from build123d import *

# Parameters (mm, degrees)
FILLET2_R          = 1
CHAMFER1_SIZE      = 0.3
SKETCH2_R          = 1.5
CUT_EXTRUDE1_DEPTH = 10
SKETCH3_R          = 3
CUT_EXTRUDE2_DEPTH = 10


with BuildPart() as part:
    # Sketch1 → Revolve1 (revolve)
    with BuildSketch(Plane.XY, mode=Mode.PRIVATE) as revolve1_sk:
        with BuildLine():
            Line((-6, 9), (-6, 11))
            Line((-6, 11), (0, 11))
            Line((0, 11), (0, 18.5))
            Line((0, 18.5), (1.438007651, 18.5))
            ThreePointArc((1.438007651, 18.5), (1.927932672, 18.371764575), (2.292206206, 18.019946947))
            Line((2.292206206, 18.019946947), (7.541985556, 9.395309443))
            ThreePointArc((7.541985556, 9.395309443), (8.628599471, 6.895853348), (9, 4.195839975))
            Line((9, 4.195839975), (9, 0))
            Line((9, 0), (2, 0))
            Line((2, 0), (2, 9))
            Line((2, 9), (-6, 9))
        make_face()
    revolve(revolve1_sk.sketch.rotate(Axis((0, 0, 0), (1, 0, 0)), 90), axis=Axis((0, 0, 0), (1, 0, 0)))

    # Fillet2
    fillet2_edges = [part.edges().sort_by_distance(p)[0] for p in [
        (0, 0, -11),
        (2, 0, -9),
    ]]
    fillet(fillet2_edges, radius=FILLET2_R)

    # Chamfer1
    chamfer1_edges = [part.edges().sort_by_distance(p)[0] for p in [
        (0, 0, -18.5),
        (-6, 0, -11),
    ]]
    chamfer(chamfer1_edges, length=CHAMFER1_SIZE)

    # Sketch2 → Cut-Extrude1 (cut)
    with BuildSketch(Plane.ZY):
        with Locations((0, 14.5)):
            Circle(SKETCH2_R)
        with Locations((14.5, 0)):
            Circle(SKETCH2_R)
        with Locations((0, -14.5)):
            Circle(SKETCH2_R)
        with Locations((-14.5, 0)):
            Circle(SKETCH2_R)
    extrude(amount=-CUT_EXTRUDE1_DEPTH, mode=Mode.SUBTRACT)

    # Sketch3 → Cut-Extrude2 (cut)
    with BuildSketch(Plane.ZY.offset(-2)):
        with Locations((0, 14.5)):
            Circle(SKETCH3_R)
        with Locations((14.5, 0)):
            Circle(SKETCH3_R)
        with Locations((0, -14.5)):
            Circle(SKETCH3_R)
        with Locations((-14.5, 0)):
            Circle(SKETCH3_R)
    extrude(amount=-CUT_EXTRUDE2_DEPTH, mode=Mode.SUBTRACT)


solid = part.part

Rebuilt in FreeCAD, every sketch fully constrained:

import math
import FreeCAD as App
import Part
import Sketcher
from FreeCAD import Vector
Q = App.Units.Quantity


def edges_at(feature, points):
    """Names of the edges that pass closest to the given points."""
    edges = feature.Shape.Edges
    near = lambda p: min(range(len(edges)), key=lambda i: edges[i].distToShape(Part.Vertex(*p))[0])
    return sorted({f"Edge{near(p) + 1}" for p in points})

doc = App.newDocument("Part")
body = doc.addObject("PartDesign::Body", "Body")

# Sketch on XY plane
sketch1 = doc.addObject("Sketcher::SketchObject", "Sketch")
body.addObject(sketch1)
sketch1.AttachmentSupport = (doc.XY_Plane, [""])
sketch1.MapMode = "FlatFace"
sketch1.addGeometry(Part.LineSegment(Vector(-6, 11, 0), Vector(-6, 9, 0)), False)
sketch1.addGeometry(Part.LineSegment(Vector(-6, 9, 0), Vector(2, 9, 0)), False)
sketch1.addGeometry(Part.LineSegment(Vector(2, 9, 0), Vector(2, 0, 0)), False)
sketch1.addGeometry(Part.LineSegment(Vector(2, 0, 0), Vector(9, 0, 0)), False)
sketch1.addGeometry(Part.LineSegment(Vector(9, 0, 0), Vector(9, 4.19584, 0)), False)
sketch1.addGeometry(Part.ArcOfCircle(Part.Circle(Vector(-1, 4.19584, 0), Vector(0, 0, 1), 10), math.radians(0), math.radians(31.328693)), False)
sketch1.addGeometry(Part.LineSegment(Vector(7.541986, 9.395309, 0), Vector(2.292206, 18.019947, 0)), False)
sketch1.addGeometry(Part.ArcOfCircle(Part.Circle(Vector(1.438008, 17.5, 0), Vector(0, 0, 1), 1), math.radians(31.328693), math.radians(90)), False)
sketch1.addGeometry(Part.LineSegment(Vector(1.438008, 18.5, 0), Vector(0, 18.5, 0)), False)
sketch1.addGeometry(Part.LineSegment(Vector(0, 18.5, 0), Vector(0, 11, 0)), False)
sketch1.addGeometry(Part.LineSegment(Vector(0, 11, 0), Vector(-6, 11, 0)), False)
sketch1.addConstraint(Sketcher.Constraint("Coincident", 0, 2, 1, 1))
sketch1.addConstraint(Sketcher.Constraint("Coincident", 1, 2, 2, 1))
sketch1.addConstraint(Sketcher.Constraint("Coincident", 2, 2, 3, 1))
sketch1.addConstraint(Sketcher.Constraint("Coincident", 3, 2, 4, 1))
sketch1.addConstraint(Sketcher.Constraint("Tangent", 4, 2, 5, 1))
sketch1.addConstraint(Sketcher.Constraint("Tangent", 5, 2, 6, 1))
sketch1.addConstraint(Sketcher.Constraint("Tangent", 6, 2, 7, 1))
sketch1.addConstraint(Sketcher.Constraint("Tangent", 7, 2, 8, 1))
sketch1.addConstraint(Sketcher.Constraint("Coincident", 8, 2, 9, 1))
sketch1.addConstraint(Sketcher.Constraint("Coincident", 9, 2, 10, 1))
sketch1.addConstraint(Sketcher.Constraint("Coincident", 10, 2, 0, 1))
sketch1.addConstraint(Sketcher.Constraint("Vertical", 0))
sketch1.addConstraint(Sketcher.Constraint("Horizontal", 1))
sketch1.addConstraint(Sketcher.Constraint("Vertical", 2))
sketch1.addConstraint(Sketcher.Constraint("Horizontal", 3))
sketch1.addConstraint(Sketcher.Constraint("Vertical", 4))
sketch1.addConstraint(Sketcher.Constraint("Horizontal", 8))
sketch1.addConstraint(Sketcher.Constraint("Vertical", 9))
sketch1.addConstraint(Sketcher.Constraint("Horizontal", 10))
sketch1.addConstraint(Sketcher.Constraint("PointOnObject", 2, 2, -1))
sketch1.addConstraint(Sketcher.Constraint("PointOnObject", 8, 2, -2))
sketch1.addConstraint(Sketcher.Constraint("Radius", 5, Q("10 mm")))
sketch1.addConstraint(Sketcher.Constraint("Radius", 7, Q("1 mm")))
sketch1.addConstraint(Sketcher.Constraint("DistanceX", 1, 1, 1, 2, Q("8 mm")))
sketch1.addConstraint(Sketcher.Constraint("DistanceX", 3, 1, 3, 2, Q("7 mm")))
sketch1.addConstraint(Sketcher.Constraint("DistanceX", 10, 2, 10, 1, Q("6 mm")))
sketch1.addConstraint(Sketcher.Constraint("DistanceY", 0, 2, 0, 1, Q("2 mm")))
sketch1.addConstraint(Sketcher.Constraint("DistanceY", 2, 2, 2, 1, Q("9 mm")))
sketch1.addConstraint(Sketcher.Constraint("DistanceY", 9, 2, 9, 1, Q("7.5 mm")))
sketch1.addConstraint(Sketcher.Constraint("DistanceY", 4, 1, 4, 2, Q("4.19584 mm")))
sketch1.addConstraint(Sketcher.Constraint("DistanceX", 7, 3, 6, 2, Q("0.854199 mm")))
revolution = doc.addObject("PartDesign::Revolution", "Revolution")
body.addObject(revolution)
revolution.Profile = sketch1
revolution.ReferenceAxis = (sketch1, ["H_Axis"])
revolution.Angle = 360
doc.recompute()

fillet = doc.addObject("PartDesign::Fillet", "Fillet")
body.addObject(fillet)
fillet.Base = (revolution, edges_at(revolution, [(0, 0, -11), (2, 0, -9)]))
fillet.Radius = 1
doc.recompute()

chamfer = doc.addObject("PartDesign::Chamfer", "Chamfer")
body.addObject(chamfer)
chamfer.Base = (fillet, edges_at(fillet, [(0, 0, -18.5), (-6, 0, -11)]))
chamfer.Size = 0.3

# Sketch on YZ plane
sketch2 = doc.addObject("Sketcher::SketchObject", "Sketch001")
body.addObject(sketch2)
sketch2.AttachmentSupport = (doc.YZ_Plane, [""])
sketch2.MapMode = "FlatFace"
sketch2.addGeometry(Part.Circle(Vector(14.5, 0, 0), Vector(0, 0, 1), 1.5), False)
sketch2.addGeometry(Part.Circle(Vector(0, 14.5, 0), Vector(0, 0, 1), 1.5), False)
sketch2.addGeometry(Part.Circle(Vector(-14.5, 0, 0), Vector(0, 0, 1), 1.5), False)
sketch2.addGeometry(Part.Circle(Vector(0, -14.5, 0), Vector(0, 0, 1), 1.5), False)
sketch2.addConstraint(Sketcher.Constraint("Equal", 0, 1))
sketch2.addConstraint(Sketcher.Constraint("Equal", 1, 2))
sketch2.addConstraint(Sketcher.Constraint("Equal", 2, 3))
sketch2.addConstraint(Sketcher.Constraint("Symmetric", 0, 3, 2, 3, -1, 1))
sketch2.addConstraint(Sketcher.Constraint("Symmetric", 1, 3, 3, 3, -1, 1))
sketch2.addConstraint(Sketcher.Constraint("PointOnObject", 0, 3, -1))
sketch2.addConstraint(Sketcher.Constraint("PointOnObject", 1, 3, -2))
sketch2.addConstraint(Sketcher.Constraint("Diameter", 0, Q("3 mm")))
sketch2.addConstraint(Sketcher.Constraint("DistanceX", 2, 3, 0, 3, Q("29 mm")))
sketch2.addConstraint(Sketcher.Constraint("DistanceY", 3, 3, 1, 3, Q("29 mm")))
pocket1 = doc.addObject("PartDesign::Pocket", "Pocket")
body.addObject(pocket1)
pocket1.Profile = sketch2
pocket1.Length = 10
pocket1.Reversed = True

# Sketch on YZ plane
sketch3 = doc.addObject("Sketcher::SketchObject", "Sketch002")
body.addObject(sketch3)
sketch3.AttachmentSupport = (doc.YZ_Plane, [""])
sketch3.MapMode = "FlatFace"
sketch3.AttachmentOffset = App.Placement(Vector(0, 0, 2), App.Rotation())
sketch3.addGeometry(Part.Circle(Vector(14.5, 0, 0), Vector(0, 0, 1), 3), False)
sketch3.addGeometry(Part.Circle(Vector(0, 14.5, 0), Vector(0, 0, 1), 3), False)
sketch3.addGeometry(Part.Circle(Vector(-14.5, 0, 0), Vector(0, 0, 1), 3), False)
sketch3.addGeometry(Part.Circle(Vector(0, -14.5, 0), Vector(0, 0, 1), 3), False)
sketch3.addConstraint(Sketcher.Constraint("Equal", 0, 1))
sketch3.addConstraint(Sketcher.Constraint("Equal", 1, 2))
sketch3.addConstraint(Sketcher.Constraint("Equal", 2, 3))
sketch3.addConstraint(Sketcher.Constraint("Symmetric", 0, 3, 2, 3, -1, 1))
sketch3.addConstraint(Sketcher.Constraint("Symmetric", 1, 3, 3, 3, -1, 1))
sketch3.addConstraint(Sketcher.Constraint("PointOnObject", 0, 3, -1))
sketch3.addConstraint(Sketcher.Constraint("PointOnObject", 1, 3, -2))
sketch3.addConstraint(Sketcher.Constraint("Diameter", 0, Q("6 mm")))
sketch3.addConstraint(Sketcher.Constraint("DistanceX", 2, 3, 0, 3, Q("29 mm")))
sketch3.addConstraint(Sketcher.Constraint("DistanceY", 3, 3, 1, 3, Q("29 mm")))
pocket2 = doc.addObject("PartDesign::Pocket", "Pocket001")
body.addObject(pocket2)
pocket2.Profile = sketch3
pocket2.Length = 10
pocket2.Reversed = True

doc.recompute()
